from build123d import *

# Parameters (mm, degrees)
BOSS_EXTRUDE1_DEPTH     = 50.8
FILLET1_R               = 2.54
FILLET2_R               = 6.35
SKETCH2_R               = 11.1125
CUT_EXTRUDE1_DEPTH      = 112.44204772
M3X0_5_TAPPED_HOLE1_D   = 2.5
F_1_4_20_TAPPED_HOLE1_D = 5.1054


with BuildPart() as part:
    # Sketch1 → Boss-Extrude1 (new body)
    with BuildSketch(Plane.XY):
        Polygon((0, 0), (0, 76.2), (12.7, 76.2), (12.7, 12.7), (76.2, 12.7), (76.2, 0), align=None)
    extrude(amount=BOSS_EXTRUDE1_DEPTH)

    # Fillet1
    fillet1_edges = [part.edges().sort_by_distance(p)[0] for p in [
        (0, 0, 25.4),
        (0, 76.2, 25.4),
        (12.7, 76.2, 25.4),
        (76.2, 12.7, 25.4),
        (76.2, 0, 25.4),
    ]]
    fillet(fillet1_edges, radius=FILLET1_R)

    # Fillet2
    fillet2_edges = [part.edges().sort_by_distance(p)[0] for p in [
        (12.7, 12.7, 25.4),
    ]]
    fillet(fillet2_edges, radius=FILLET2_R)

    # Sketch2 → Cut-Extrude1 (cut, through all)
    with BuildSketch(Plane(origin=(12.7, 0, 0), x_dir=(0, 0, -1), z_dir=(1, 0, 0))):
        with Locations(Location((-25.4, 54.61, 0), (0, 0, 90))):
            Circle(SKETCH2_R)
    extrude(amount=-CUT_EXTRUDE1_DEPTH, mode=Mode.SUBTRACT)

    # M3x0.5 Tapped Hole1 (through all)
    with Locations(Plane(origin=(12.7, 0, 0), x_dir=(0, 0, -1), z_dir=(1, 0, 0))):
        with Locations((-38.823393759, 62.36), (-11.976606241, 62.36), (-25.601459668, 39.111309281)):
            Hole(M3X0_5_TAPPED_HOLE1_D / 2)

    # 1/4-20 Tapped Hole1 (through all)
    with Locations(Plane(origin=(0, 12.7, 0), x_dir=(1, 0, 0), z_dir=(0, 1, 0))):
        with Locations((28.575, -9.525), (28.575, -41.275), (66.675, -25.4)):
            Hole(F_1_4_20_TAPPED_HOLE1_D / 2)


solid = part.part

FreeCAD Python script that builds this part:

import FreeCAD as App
import Part
import Sketcher
Q = App.Units.Quantity


def edges_at(feature, points):
    """Names of the edges that pass closest to the given points."""
    edges = feature.Shape.Edges
    near = lambda p: min(range(len(edges)), key=lambda i: edges[i].distToShape(Part.Vertex(*p))[0])
    return sorted({f"Edge{near(p) + 1}" for p in points})


def add_polygon(sketch, points):
    """Adds a closed chain of lines whose ends are joined by coincident constraints."""
    first, n = sketch.GeometryCount, len(points)
    for a, b in zip(points, points[1:] + points[:1]):
        sketch.addGeometry(Part.LineSegment(App.Vector(*a, 0), App.Vector(*b, 0)), False)
    for i in range(n):
        sketch.addConstraint(Sketcher.Constraint("Coincident", first + i, 2, first + (i + 1) % n, 1))

doc = App.newDocument("Part")
body = doc.addObject("PartDesign::Body", "Body")

# Sketch on XY plane
sketch1 = doc.addObject("Sketcher::SketchObject", "Sketch")
body.addObject(sketch1)
sketch1.AttachmentSupport = (doc.XY_Plane, [""])
sketch1.MapMode = "FlatFace"
add_polygon(sketch1, [(0, 76.2), (0, 0), (76.2, 0), (76.2, 12.7), (12.7, 12.7), (12.7, 76.2)])  # lines 0-5
sketch1.addConstraint(Sketcher.Constraint("Vertical", 0))
sketch1.addConstraint(Sketcher.Constraint("Horizontal", 1))
sketch1.addConstraint(Sketcher.Constraint("Vertical", 2))
sketch1.addConstraint(Sketcher.Constraint("Horizontal", 3))
sketch1.addConstraint(Sketcher.Constraint("Vertical", 4))
sketch1.addConstraint(Sketcher.Constraint("Horizontal", 5))
sketch1.addConstraint(Sketcher.Constraint("Coincident", 0, 2, -1, 1))
sketch1.addConstraint(Sketcher.Constraint("Equal", 1, 0))
sketch1.addConstraint(Sketcher.Constraint("Equal", 5, 2))
sketch1.addConstraint(Sketcher.Constraint("DistanceX", 1, 1, 1, 2, Q("3 in")))
sketch1.addConstraint(Sketcher.Constraint("DistanceX", 3, 2, 3, 1, Q("2.5 in")))
pad1 = doc.addObject("PartDesign::Pad", "Pad")
body.addObject(pad1)
pad1.Profile = sketch1
pad1.Length = Q("2 in")
doc.recompute()

fillet = doc.addObject("PartDesign::Fillet", "Fillet")
body.addObject(fillet)
fillet.Base = (pad1, edges_at(pad1, [
    (0, 0, 25.4),
    (0, 76.2, 25.4),
    (12.7, 76.2, 25.4),
    (76.2, 12.7, 25.4),
    (76.2, 0, 25.4),
]))
fillet.Radius = Q("0.1 in")
doc.recompute()

fillet2 = doc.addObject("PartDesign::Fillet", "Fillet001")
body.addObject(fillet2)
fillet2.Base = (fillet, edges_at(fillet, [(12.7, 12.7, 25.4)]))
fillet2.Radius = Q("0.25 in")

# Sketch on YZ plane
sketch2 = doc.addObject("Sketcher::SketchObject", "Sketch001")
body.addObject(sketch2)
sketch2.AttachmentSupport = (doc.YZ_Plane, [""])
sketch2.MapMode = "FlatFace"
sketch2.AttachmentOffset = App.Placement(App.Vector(0, 0, 0.5 * 25.4), App.Rotation())
sketch2.addGeometry(Part.Circle(App.Vector(54.61, 25.4, 0), App.Vector(0, 0, 1), 11.1125), False)
sketch2.addConstraint(Sketcher.Constraint("Diameter", 0, Q("0.875 in")))
sketch2.addConstraint(Sketcher.Constraint("DistanceY", -1, 1, 0, 3, Q("1 in")))
sketch2.addConstraint(Sketcher.Constraint("DistanceX", -1, 1, 0, 3, Q("2.15 in")))
pocket1 = doc.addObject("PartDesign::Pocket", "Pocket")
body.addObject(pocket1)
pocket1.Profile = sketch2
pocket1.Type = "ThroughAll"

# Sketch on YZ plane
sketch3 = doc.addObject("Sketcher::SketchObject", "Sketch002")
body.addObject(sketch3)
sketch3.AttachmentSupport = (doc.YZ_Plane, [""])
sketch3.MapMode = "FlatFace"
sketch3.AttachmentOffset = App.Placement(App.Vector(0, 0, 0.5 * 25.4), App.Rotation())
sketch3.addGeometry(Part.Circle(App.Vector(62.36, 38.823394, 0), App.Vector(0, 0, 1), 1.25), False)
sketch3.addGeometry(Part.Circle(App.Vector(62.36, 11.976606, 0), App.Vector(0, 0, 1), 1.25), False)
sketch3.addGeometry(Part.Circle(App.Vector(39.111309, 25.60146, 0), App.Vector(0, 0, 1), 1.25), False)
sketch3.addConstraint(Sketcher.Constraint("Equal", 0, 1))
sketch3.addConstraint(Sketcher.Constraint("Equal", 1, 2))
sketch3.addConstraint(Sketcher.Constraint("Vertical", 0, 3, 1, 3))
sketch3.addConstraint(Sketcher.Constraint("Diameter", 0, Q("2.5 mm")))
sketch3.addConstraint(Sketcher.Constraint("DistanceX", -1, 1, 0, 3, Q("62.36 mm")))
sketch3.addConstraint(Sketcher.Constraint("DistanceX", -1, 1, 2, 3, Q("39.111309 mm")))
sketch3.addConstraint(Sketcher.Constraint("DistanceY", -1, 1, 2, 3, Q("25.60146 mm")))
sketch3.addConstraint(Sketcher.Constraint("DistanceY", -1, 1, 0, 3, Q("38.823394 mm")))
sketch3.addConstraint(Sketcher.Constraint("DistanceY", -1, 1, 1, 3, Q("11.976606 mm")))
doc.recompute()
hole = doc.addObject("PartDesign::Hole", "Hole")
body.addObject(hole)
hole.Profile = sketch3
hole.ThreadType = "None"
hole.Diameter = 2.5
hole.DepthType = "ThroughAll"

# Sketch on XZ plane
sketch4 = doc.addObject("Sketcher::SketchObject", "Sketch003")
body.addObject(sketch4)
sketch4.AttachmentSupport = (doc.XZ_Plane, [""])
sketch4.MapMode = "FlatFace"
sketch4.AttachmentOffset = App.Placement(App.Vector(0, 0, -0.5 * 25.4), App.Rotation())
sketch4.addGeometry(Part.Circle(App.Vector(28.575, 9.525, 0), App.Vector(0, 0, 1), 2.5527), False)
sketch4.addGeometry(Part.Circle(App.Vector(28.575, 41.275, 0), App.Vector(0, 0, 1), 2.5527), False)
sketch4.addGeometry(Part.Circle(App.Vector(66.675, 25.4, 0), App.Vector(0, 0, 1), 2.5527), False)
sketch4.addConstraint(Sketcher.Constraint("Equal", 0, 1))
sketch4.addConstraint(Sketcher.Constraint("Equal", 1, 2))
sketch4.addConstraint(Sketcher.Constraint("Vertical", 0, 3, 1, 3))
sketch4.addConstraint(Sketcher.Constraint("Diameter", 0, Q("0.201 in")))
sketch4.addConstraint(Sketcher.Constraint("DistanceY", -1, 1, 2, 3, Q("1 in")))
sketch4.addConstraint(Sketcher.Constraint("DistanceX", 0, 3, 2, 3, Q("1.5 in")))
sketch4.addConstraint(Sketcher.Constraint("DistanceY", 0, 3, 1, 3, Q("1.25 in")))
sketch4.addConstraint(Sketcher.Constraint("DistanceX", -1, 1, 0, 3, Q("1.125 in")))
sketch4.addConstraint(Sketcher.Constraint("DistanceY", -1, 1, 0, 3, Q("0.375 in")))
doc.recompute()
hole2 = doc.addObject("PartDesign::Hole", "Hole001")
body.addObject(hole2)
hole2.Profile = sketch4
hole2.ThreadType = "None"
hole2.Diameter = Q("0.201 in")
hole2.DepthType = "ThroughAll"
hole2.Reversed = True

doc.recompute()
